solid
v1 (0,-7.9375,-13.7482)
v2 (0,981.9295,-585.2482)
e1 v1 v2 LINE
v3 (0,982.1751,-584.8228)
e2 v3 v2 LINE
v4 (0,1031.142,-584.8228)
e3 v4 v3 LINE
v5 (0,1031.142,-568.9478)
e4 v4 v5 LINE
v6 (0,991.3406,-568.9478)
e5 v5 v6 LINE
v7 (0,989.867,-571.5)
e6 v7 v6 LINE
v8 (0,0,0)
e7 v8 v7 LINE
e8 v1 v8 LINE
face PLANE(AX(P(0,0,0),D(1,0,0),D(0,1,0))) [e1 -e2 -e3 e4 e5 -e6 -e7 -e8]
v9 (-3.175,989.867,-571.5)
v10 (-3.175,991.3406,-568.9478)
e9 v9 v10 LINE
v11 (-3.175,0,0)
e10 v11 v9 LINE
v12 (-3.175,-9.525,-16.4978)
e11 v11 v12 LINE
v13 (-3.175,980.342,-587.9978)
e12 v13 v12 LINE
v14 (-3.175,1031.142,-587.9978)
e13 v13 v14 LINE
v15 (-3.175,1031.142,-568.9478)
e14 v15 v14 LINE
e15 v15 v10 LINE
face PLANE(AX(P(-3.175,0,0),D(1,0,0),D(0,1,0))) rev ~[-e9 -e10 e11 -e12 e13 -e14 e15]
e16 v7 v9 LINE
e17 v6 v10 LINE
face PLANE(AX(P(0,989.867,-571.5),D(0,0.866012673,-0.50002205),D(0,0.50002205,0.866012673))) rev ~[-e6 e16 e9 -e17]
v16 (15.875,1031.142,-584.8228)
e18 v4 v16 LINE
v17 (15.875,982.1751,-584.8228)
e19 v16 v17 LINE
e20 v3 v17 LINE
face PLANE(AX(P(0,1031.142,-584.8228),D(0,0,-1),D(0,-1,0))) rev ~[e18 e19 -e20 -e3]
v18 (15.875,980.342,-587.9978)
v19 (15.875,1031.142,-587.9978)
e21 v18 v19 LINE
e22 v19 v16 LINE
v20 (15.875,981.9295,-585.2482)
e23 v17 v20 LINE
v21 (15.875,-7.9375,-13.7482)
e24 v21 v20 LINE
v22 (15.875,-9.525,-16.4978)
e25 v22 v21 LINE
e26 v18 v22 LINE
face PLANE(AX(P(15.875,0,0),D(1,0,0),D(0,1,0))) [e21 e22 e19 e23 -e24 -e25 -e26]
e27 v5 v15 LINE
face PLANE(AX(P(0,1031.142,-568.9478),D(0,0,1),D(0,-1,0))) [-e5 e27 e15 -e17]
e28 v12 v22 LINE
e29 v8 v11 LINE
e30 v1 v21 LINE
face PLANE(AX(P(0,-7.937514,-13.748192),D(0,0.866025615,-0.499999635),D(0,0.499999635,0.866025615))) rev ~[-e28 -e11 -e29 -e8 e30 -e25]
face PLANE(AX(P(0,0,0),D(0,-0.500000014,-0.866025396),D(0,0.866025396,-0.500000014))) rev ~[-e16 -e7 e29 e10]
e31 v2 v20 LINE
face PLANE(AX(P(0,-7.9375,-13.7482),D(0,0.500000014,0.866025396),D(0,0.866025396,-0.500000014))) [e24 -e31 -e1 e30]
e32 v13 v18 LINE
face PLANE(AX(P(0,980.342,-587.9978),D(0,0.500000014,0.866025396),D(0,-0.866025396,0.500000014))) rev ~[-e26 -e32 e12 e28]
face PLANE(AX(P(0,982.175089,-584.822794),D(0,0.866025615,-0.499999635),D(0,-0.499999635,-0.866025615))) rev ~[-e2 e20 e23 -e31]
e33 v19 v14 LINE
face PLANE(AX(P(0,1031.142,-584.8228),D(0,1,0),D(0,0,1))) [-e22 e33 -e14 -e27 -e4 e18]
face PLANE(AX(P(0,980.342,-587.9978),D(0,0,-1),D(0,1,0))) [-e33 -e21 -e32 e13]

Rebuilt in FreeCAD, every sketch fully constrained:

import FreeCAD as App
import Part
import Sketcher

V = App.Vector
Q = App.Units.Quantity


def add_polygon(sketch, points):
    """Adds a closed chain of lines whose ends are joined by coincident constraints."""
    first, n = sketch.GeometryCount, len(points)
    for a, b in zip(points, points[1:] + points[:1]):
        sketch.addGeometry(Part.LineSegment(App.Vector(*a, 0), App.Vector(*b, 0)), False)
    for i in range(n):
        sketch.addConstraint(Sketcher.Constraint("Coincident", first + i, 2, first + (i + 1) % n, 1))

doc = App.newDocument("Part")
body = doc.addObject("PartDesign::Body", "Body")

# Sketch on YZ plane
sketch1 = doc.addObject("Sketcher::SketchObject", "Sketch")
body.addObject(sketch1)
sketch1.AttachmentSupport = (doc.YZ_Plane, [""])
sketch1.MapMode = "FlatFace"
add_polygon(sketch1, [(989.9, -571.5), (0, 0), (-9.5, -16.5), (980.3, -588), (1031.1, -588), (1031.1, -568.9), (991.3, -568.9)])  # lines 0-6
sketch1.addConstraint(Sketcher.Constraint("Horizontal", 3))
sketch1.addConstraint(Sketcher.Constraint("Vertical", 4))
sketch1.addConstraint(Sketcher.Constraint("Horizontal", 5))
sketch1.addConstraint(Sketcher.Constraint("Coincident", 0, 2, -1, 1))
sketch1.addConstraint(Sketcher.Constraint("Perpendicular", 0, 1))
sketch1.addConstraint(Sketcher.Constraint("Perpendicular", 1, 2))
sketch1.addConstraint(Sketcher.Constraint("Perpendicular", 2, 6))
sketch1.addConstraint(Sketcher.Constraint("Equal", 0, 2))
sketch1.addConstraint(Sketcher.Constraint("DistanceX", 3, 1, 3, 2, Q("2 in")))
sketch1.addConstraint(Sketcher.Constraint("Distance", 0, Q("45 in")))
sketch1.addConstraint(Sketcher.Constraint("Angle", 2, Q("-30 deg")))
sketch1.addConstraint(Sketcher.Constraint("DistanceY", 4, 1, 4, 2, Q("0.75 in")))
sketch1.addConstraint(Sketcher.Constraint("Distance", 1, Q("0.75 in")))
pad1 = doc.addObject("PartDesign::Pad", "Pad")
body.addObject(pad1)
pad1.Profile = sketch1
pad1.Length = Q("0.125 in")
pad1.Reversed = True

# Sketch on YZ plane
sketch2 = doc.addObject("Sketcher::SketchObject", "Sketch001")
body.addObject(sketch2)
sketch2.AttachmentSupport = (doc.YZ_Plane, [""])
sketch2.MapMode = "FlatFace"
add_polygon(sketch2, [(981.93, -585.25), (-7.94, -13.75), (-9.53, -16.5), (980.34, -588), (1031.14, -588), (1031.14, -584.82), (982.18, -584.82)])  # lines 0-6
sketch2.addConstraint(Sketcher.Constraint("Horizontal", 3))
sketch2.addConstraint(Sketcher.Constraint("Vertical", 4))
sketch2.addConstraint(Sketcher.Constraint("Horizontal", 5))
sketch2.addConstraint(Sketcher.Constraint("Perpendicular", 0, 1))
sketch2.addConstraint(Sketcher.Constraint("Perpendicular", 1, 2))
sketch2.addConstraint(Sketcher.Constraint("Perpendicular", 2, 6))
sketch2.addConstraint(Sketcher.Constraint("Equal", 0, 2))
sketch2.addConstraint(Sketcher.Constraint("DistanceX", 3, 1, 3, 2, Q("2 in")))
sketch2.addConstraint(Sketcher.Constraint("Distance", 0, Q("45 in")))
sketch2.addConstraint(Sketcher.Constraint("Angle", 2, Q("-30 deg")))
sketch2.addConstraint(Sketcher.Constraint("DistanceY", 4, 1, 4, 2, Q("0.125 in")))
sketch2.addConstraint(Sketcher.Constraint("Distance", 1, Q("0.125 in")))
sketch2.addConstraint(Sketcher.Constraint("DistanceX", 0, 2, -1, 1, Q("0.3125 in")))
sketch2.addConstraint(Sketcher.Constraint("DistanceY", 0, 2, -1, 1, Q("13.7482 mm")))
pad2 = doc.addObject("PartDesign::Pad", "Pad001")
body.addObject(pad2)
pad2.Profile = sketch2
pad2.Length = Q("0.625 in")

doc.recompute()
